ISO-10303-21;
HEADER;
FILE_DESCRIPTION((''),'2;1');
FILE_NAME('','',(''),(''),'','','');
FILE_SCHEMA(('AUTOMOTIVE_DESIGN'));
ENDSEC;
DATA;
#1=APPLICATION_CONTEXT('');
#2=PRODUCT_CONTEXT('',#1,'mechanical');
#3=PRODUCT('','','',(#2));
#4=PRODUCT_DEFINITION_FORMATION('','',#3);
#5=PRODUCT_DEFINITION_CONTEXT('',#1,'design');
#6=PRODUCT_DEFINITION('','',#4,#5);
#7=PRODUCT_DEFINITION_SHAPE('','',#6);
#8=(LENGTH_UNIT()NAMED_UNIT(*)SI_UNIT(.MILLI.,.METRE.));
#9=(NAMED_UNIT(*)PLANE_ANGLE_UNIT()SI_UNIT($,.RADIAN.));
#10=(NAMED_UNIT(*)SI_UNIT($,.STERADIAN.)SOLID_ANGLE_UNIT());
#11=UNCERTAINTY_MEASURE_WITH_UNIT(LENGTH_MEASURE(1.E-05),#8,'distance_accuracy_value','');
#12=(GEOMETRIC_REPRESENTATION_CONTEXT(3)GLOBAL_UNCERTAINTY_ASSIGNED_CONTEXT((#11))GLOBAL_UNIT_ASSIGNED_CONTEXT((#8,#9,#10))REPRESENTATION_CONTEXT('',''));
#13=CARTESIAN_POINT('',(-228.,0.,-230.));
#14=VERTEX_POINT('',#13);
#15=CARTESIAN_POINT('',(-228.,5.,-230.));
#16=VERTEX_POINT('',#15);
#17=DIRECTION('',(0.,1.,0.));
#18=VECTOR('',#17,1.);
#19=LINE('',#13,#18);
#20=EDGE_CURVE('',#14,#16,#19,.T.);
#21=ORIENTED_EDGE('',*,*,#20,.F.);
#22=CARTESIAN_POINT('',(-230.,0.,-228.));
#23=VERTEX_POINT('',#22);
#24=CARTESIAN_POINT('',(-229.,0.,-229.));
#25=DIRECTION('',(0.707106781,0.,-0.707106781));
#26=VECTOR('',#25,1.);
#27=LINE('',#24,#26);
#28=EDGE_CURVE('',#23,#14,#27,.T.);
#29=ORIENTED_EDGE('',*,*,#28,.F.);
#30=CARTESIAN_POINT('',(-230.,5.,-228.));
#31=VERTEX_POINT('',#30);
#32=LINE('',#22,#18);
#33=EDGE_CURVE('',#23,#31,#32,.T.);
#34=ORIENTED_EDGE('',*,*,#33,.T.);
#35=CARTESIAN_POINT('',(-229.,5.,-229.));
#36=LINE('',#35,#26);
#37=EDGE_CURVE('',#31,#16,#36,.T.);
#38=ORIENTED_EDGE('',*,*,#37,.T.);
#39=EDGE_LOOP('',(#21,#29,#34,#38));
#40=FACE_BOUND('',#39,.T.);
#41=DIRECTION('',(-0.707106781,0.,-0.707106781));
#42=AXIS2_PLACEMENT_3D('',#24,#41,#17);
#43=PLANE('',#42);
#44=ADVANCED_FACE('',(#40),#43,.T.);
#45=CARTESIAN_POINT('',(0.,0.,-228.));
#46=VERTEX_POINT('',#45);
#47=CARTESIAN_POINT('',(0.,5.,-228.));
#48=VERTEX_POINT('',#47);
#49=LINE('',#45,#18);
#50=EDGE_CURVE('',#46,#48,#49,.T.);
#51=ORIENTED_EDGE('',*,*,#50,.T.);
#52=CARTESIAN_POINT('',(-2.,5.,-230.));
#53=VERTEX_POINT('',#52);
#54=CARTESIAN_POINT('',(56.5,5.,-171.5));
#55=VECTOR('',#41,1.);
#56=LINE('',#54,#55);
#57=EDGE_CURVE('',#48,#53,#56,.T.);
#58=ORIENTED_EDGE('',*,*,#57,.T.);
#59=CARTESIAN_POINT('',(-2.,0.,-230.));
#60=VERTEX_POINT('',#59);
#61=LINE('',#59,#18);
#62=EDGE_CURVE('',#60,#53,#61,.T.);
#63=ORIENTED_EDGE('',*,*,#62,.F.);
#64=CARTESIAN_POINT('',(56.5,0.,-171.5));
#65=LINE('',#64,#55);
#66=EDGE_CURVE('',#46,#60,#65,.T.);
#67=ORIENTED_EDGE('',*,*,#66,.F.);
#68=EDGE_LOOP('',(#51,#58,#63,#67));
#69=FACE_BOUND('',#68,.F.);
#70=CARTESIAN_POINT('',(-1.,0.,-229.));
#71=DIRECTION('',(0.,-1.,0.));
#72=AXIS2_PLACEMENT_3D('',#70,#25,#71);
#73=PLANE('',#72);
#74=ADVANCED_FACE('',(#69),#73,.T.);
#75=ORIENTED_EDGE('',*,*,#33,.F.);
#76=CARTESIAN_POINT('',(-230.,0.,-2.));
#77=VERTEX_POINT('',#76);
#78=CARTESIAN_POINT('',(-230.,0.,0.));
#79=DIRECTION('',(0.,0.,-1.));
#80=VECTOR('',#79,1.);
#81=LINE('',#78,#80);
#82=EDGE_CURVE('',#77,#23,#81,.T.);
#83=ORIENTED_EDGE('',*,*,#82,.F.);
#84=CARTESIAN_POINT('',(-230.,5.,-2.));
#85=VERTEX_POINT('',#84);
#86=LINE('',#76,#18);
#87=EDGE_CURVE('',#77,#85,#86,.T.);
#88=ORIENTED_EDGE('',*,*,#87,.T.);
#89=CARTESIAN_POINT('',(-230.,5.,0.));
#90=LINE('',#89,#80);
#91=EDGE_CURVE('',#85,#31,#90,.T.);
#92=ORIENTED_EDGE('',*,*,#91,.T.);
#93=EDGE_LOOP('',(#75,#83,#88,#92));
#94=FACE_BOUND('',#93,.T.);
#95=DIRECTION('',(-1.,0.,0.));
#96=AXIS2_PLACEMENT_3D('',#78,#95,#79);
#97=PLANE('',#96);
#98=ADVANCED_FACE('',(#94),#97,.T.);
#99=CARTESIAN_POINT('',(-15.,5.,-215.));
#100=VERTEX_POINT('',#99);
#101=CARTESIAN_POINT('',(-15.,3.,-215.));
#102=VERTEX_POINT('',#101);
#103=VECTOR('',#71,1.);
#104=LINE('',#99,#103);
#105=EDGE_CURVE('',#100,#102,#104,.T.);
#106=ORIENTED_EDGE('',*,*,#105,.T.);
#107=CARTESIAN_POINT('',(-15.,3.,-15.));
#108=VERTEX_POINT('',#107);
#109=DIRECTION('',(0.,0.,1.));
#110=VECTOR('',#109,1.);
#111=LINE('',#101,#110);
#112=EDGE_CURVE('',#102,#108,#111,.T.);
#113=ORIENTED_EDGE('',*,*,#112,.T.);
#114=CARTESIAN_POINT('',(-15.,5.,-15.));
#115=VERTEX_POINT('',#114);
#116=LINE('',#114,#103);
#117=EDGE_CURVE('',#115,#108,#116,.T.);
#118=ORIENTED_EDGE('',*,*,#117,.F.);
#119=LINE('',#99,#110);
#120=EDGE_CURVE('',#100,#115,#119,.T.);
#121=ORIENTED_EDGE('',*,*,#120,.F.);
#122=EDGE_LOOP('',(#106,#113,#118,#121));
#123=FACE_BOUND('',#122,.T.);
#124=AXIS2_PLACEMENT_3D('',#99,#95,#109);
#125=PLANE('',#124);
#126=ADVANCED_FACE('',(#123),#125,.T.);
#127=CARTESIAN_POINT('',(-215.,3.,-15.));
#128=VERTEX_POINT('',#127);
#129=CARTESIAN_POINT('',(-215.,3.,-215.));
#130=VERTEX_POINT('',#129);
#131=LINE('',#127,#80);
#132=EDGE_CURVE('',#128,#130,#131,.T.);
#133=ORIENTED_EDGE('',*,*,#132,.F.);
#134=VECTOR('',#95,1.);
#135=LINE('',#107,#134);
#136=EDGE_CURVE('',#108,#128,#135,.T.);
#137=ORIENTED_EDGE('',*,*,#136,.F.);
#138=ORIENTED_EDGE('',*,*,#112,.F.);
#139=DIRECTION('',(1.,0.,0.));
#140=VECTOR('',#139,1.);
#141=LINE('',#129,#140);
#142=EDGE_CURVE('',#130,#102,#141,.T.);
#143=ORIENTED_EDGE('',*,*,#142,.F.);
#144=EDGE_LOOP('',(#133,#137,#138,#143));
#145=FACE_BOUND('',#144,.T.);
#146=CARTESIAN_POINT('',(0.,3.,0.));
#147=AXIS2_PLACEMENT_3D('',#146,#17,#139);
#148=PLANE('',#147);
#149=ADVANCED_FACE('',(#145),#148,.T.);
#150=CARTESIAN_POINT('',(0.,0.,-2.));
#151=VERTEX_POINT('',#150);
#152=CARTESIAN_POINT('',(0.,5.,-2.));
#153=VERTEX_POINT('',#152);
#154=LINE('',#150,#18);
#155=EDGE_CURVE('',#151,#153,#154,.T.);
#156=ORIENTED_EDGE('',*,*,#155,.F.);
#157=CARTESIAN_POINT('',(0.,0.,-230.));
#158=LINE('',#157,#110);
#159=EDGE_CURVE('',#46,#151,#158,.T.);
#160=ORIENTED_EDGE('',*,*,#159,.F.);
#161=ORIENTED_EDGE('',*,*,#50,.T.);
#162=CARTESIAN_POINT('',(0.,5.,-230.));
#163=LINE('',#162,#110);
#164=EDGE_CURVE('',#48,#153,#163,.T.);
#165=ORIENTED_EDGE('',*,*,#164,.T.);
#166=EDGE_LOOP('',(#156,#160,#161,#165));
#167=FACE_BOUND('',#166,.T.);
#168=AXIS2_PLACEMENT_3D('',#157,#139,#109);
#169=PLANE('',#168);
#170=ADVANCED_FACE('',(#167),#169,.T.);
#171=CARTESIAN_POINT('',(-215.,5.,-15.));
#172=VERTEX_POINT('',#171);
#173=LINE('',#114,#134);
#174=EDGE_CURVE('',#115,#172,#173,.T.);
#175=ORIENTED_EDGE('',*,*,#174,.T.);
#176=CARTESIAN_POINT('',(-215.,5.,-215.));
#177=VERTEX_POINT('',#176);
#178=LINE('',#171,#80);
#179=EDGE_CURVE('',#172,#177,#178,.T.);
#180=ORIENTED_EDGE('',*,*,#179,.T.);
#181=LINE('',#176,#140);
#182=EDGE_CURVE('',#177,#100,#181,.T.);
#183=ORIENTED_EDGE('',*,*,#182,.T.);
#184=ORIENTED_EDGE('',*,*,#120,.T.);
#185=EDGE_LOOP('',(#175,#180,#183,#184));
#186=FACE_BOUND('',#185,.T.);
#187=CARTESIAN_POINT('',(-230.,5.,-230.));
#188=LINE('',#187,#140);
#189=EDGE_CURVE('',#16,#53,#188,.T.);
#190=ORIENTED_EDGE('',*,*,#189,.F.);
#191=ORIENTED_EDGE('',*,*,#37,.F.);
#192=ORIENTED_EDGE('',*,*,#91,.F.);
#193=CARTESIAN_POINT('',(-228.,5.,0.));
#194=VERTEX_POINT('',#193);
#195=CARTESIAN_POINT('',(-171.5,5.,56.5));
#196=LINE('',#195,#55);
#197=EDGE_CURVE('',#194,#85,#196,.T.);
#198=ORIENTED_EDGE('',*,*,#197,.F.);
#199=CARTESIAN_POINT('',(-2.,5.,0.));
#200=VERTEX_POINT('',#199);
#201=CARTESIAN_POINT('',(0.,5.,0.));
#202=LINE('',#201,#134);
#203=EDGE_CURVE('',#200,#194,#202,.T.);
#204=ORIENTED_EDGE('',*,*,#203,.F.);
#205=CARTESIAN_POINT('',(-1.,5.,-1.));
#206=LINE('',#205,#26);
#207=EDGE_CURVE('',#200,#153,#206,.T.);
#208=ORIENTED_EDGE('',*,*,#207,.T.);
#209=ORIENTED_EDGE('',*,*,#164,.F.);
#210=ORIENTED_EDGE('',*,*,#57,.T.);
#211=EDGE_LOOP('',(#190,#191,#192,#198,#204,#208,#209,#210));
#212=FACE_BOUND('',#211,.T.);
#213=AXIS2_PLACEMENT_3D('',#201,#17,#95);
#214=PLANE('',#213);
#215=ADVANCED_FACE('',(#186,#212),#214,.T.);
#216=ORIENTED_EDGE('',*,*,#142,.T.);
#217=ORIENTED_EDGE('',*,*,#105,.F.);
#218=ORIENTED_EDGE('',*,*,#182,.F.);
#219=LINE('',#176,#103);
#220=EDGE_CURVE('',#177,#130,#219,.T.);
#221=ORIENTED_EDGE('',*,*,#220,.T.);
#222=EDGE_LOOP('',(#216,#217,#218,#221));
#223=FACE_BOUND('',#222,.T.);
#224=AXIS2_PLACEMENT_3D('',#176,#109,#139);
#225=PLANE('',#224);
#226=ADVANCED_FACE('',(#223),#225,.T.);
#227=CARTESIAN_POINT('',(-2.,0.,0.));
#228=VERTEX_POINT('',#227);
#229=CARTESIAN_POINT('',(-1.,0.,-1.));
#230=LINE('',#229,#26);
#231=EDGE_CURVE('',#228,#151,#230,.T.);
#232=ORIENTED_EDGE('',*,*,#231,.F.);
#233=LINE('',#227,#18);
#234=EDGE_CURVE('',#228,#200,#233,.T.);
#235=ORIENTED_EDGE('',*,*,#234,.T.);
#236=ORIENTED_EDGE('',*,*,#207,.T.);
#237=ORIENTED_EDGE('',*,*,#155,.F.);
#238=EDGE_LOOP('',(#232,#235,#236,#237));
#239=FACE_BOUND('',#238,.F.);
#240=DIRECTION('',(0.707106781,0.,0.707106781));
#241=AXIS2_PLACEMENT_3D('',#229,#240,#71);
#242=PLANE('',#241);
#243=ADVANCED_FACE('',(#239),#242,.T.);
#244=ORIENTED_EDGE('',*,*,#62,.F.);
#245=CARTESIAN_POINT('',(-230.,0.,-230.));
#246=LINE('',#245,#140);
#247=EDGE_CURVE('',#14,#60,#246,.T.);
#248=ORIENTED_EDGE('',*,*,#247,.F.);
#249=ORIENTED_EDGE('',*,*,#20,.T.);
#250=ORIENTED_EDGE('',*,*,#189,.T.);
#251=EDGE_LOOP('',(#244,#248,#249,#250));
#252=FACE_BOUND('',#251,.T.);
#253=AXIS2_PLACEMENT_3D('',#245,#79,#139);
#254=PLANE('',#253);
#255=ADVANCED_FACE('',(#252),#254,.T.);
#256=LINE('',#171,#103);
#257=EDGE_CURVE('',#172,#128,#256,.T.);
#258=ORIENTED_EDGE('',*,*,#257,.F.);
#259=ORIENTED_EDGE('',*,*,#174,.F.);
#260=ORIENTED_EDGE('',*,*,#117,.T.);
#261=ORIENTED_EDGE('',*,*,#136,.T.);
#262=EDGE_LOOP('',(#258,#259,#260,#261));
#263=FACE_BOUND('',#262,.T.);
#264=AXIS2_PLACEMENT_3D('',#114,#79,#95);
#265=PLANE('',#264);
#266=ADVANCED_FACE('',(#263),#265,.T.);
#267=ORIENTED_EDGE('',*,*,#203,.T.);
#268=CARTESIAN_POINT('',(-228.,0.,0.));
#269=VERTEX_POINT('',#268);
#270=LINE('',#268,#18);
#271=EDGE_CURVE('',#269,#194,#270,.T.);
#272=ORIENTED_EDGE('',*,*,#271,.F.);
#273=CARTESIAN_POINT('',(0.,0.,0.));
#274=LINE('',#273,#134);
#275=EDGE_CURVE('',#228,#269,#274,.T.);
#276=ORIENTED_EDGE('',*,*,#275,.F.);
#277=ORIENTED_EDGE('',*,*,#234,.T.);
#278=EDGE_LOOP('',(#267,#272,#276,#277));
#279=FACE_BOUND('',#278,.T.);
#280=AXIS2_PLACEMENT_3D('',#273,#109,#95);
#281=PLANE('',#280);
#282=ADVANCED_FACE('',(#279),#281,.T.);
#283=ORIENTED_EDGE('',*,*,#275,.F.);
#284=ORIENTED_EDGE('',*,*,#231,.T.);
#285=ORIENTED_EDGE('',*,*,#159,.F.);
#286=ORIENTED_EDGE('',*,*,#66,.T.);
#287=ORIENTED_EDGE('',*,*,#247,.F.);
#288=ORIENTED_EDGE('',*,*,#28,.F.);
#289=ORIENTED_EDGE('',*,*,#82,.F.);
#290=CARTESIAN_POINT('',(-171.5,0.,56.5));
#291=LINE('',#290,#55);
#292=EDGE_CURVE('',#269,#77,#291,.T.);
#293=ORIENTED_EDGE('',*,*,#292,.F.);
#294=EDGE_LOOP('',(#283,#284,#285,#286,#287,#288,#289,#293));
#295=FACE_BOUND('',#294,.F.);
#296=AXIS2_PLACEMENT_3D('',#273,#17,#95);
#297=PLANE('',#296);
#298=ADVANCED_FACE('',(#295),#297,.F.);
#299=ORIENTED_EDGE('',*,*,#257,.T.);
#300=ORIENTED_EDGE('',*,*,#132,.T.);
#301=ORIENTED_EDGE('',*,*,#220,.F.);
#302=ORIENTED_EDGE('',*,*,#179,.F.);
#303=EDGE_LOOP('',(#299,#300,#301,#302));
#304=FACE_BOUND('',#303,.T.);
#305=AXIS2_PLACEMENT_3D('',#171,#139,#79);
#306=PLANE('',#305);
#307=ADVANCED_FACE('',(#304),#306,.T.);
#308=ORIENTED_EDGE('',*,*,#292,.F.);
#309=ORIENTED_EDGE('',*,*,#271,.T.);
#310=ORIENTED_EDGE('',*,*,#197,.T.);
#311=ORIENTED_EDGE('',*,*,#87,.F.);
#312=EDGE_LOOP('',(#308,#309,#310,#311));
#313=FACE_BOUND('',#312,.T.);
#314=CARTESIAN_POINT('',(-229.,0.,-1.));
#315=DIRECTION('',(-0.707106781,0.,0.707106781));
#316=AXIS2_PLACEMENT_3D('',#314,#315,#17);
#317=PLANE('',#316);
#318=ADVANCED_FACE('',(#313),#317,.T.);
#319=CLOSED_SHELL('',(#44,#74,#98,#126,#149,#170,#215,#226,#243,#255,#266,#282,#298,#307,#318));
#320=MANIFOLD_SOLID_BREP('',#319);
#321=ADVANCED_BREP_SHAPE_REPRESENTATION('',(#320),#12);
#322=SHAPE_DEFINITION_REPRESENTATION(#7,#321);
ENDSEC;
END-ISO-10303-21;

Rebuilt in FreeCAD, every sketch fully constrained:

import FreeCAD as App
import Part
import Sketcher

V = App.Vector
Q = App.Units.Quantity


def edges_at(feature, points):
    """Names of the edges that pass closest to the given points."""
    edges = feature.Shape.Edges
    near = lambda p: min(range(len(edges)), key=lambda i: edges[i].distToShape(Part.Vertex(*p))[0])
    return sorted({f"Edge{near(p) + 1}" for p in points})


def add_polygon(sketch, points):
    """Adds a closed chain of lines whose ends are joined by coincident constraints."""
    first, n = sketch.GeometryCount, len(points)
    for a, b in zip(points, points[1:] + points[:1]):
        sketch.addGeometry(Part.LineSegment(App.Vector(*a, 0), App.Vector(*b, 0)), False)
    for i in range(n):
        sketch.addConstraint(Sketcher.Constraint("Coincident", first + i, 2, first + (i + 1) % n, 1))

doc = App.newDocument("Part")
params = doc.addObject("Spreadsheet::Sheet", "Params")
for row, (alias, value) in enumerate([
    ("sketch1_width", "230 mm"),
    ("pad1_length", "5 mm"),
    ("sketch2_width", "200 mm"),
    ("pocket1_length", "2 mm"),
    ("chamfer_size", "2 mm"),
], start=1):
    params.set(f"A{row}", alias)
    params.set(f"B{row}", "=" + value)
    params.setAlias(f"B{row}", alias)

body = doc.addObject("PartDesign::Body", "Body")

# Sketch on XZ plane
sketch1 = body.newObject("Sketcher::SketchObject", "Sketch")
sketch1.AttachmentSupport = (doc.getObject("XZ_Plane"), [""])
sketch1.MapMode = "FlatFace"
add_polygon(sketch1, [(-230, 0), (0, 0), (0, -230), (-230, -230)])  # lines 0-3
sketch1.addConstraint([
    Sketcher.Constraint("Horizontal", 0),
    Sketcher.Constraint("Vertical", 1),
    Sketcher.Constraint("Horizontal", 2),
    Sketcher.Constraint("Vertical", 3),
    Sketcher.Constraint("Coincident", 0, 2, -1, 1),
    Sketcher.Constraint("Equal", 2, 1),
    Sketcher.Constraint("DistanceX", 0, 1, 0, 2, Q("230 mm")),
])
sketch1.setExpression("Constraints[10]", "Params.sketch1_width")
pad1 = body.newObject("PartDesign::Pad", "Pad")
pad1.Profile = sketch1
pad1.setExpression("Length", "Params.pad1_length")
pad1.Reversed = True

# Sketch on XZ plane
sketch2 = body.newObject("Sketcher::SketchObject", "Sketch001")
sketch2.AttachmentSupport = (doc.getObject("XZ_Plane"), [""])
sketch2.MapMode = "FlatFace"
sketch2.AttachmentOffset = App.Placement(V(0, 0, -5), App.Rotation())
add_polygon(sketch2, [(-15, -215), (-215, -215), (-215, -15), (-15, -15)])  # lines 0-3
sketch2.addConstraint([
    Sketcher.Constraint("Horizontal", 0),
    Sketcher.Constraint("Vertical", 1),
    Sketcher.Constraint("Horizontal", 2),
    Sketcher.Constraint("Vertical", 3),
    Sketcher.Constraint("Equal", 2, 1),
    Sketcher.Constraint("DistanceX", 0, 2, 0, 1, Q("200 mm")),
    Sketcher.Constraint("DistanceY", 1, 2, -1, 1, Q("15 mm")),
    Sketcher.Constraint("DistanceX", 2, 2, -1, 1, Q("15 mm")),
])
sketch2.setExpression("Constraints[9]", "Params.sketch2_width")
pocket1 = body.newObject("PartDesign::Pocket", "Pocket")
pocket1.Profile = sketch2
pocket1.setExpression("Length", "Params.pocket1_length")
pocket1.Reversed = True
doc.recompute()

chamfer = body.newObject("PartDesign::Chamfer", "Chamfer")
chamfer.Base = (pocket1, edges_at(pocket1, [
    (-230, 2.5, 0),
    (-230, 2.5, -230),
    (0, 2.5, -230),
    (0, 2.5, 0),
]))
chamfer.setExpression("Size", "Params.chamfer_size")

doc.recompute()
